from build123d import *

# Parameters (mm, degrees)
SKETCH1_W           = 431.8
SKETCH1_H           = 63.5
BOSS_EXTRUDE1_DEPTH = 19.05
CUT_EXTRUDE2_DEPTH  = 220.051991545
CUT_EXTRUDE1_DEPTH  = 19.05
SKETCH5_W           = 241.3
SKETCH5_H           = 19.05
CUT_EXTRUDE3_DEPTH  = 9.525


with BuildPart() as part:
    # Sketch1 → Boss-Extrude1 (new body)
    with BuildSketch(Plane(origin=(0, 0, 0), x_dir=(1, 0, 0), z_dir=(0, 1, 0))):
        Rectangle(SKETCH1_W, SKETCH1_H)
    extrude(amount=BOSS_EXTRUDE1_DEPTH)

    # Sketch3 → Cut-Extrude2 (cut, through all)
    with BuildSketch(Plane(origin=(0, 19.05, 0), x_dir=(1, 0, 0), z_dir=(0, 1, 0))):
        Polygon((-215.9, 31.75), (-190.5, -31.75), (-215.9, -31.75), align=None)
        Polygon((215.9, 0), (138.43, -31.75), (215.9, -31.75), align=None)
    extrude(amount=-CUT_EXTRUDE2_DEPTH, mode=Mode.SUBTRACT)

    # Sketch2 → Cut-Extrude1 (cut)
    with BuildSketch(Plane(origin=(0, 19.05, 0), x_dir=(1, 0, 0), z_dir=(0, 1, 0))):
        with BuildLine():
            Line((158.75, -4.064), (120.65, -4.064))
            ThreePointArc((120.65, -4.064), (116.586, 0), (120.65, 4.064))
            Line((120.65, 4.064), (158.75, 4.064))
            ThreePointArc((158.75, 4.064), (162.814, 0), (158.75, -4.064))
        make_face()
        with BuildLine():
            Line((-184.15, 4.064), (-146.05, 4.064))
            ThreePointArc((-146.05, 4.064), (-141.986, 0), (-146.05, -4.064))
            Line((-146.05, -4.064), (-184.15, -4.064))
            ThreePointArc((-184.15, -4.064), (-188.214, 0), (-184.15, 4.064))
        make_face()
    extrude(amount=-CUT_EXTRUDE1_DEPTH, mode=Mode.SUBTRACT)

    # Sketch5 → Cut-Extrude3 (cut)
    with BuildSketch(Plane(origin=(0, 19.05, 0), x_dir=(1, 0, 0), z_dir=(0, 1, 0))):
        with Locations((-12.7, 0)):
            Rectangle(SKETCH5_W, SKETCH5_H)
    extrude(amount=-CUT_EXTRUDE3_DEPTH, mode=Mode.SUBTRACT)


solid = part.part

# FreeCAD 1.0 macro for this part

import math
import FreeCAD as App
import Part
import Sketcher
Q = App.Units.Quantity


def add_polygon(sketch, points):
    """Adds a closed chain of lines whose ends are joined by coincident constraints."""
    first, n = sketch.GeometryCount, len(points)
    for a, b in zip(points, points[1:] + points[:1]):
        sketch.addGeometry(Part.LineSegment(App.Vector(*a, 0), App.Vector(*b, 0)), False)
    for i in range(n):
        sketch.addConstraint(Sketcher.Constraint("Coincident", first + i, 2, first + (i + 1) % n, 1))

doc = App.newDocument("Part")
body = doc.addObject("PartDesign::Body", "Body")

# Sketch on XZ plane
sketch1 = doc.addObject("Sketcher::SketchObject", "Sketch")
body.addObject(sketch1)
sketch1.AttachmentSupport = (doc.XZ_Plane, [""])
sketch1.MapMode = "FlatFace"
add_polygon(sketch1, [(-216, -32), (-216, 32), (216, 32), (216, -32)])  # lines 0-3
sketch1.addConstraint(Sketcher.Constraint("Vertical", 0))
sketch1.addConstraint(Sketcher.Constraint("Horizontal", 1))
sketch1.addConstraint(Sketcher.Constraint("Vertical", 2))
sketch1.addConstraint(Sketcher.Constraint("Horizontal", 3))
sketch1.addConstraint(Sketcher.Constraint("Symmetric", 0, 2, 2, 2, -1, 1))
sketch1.addConstraint(Sketcher.Constraint("DistanceX", 1, 1, 1, 2, Q("17 in")))
sketch1.addConstraint(Sketcher.Constraint("DistanceY", 0, 1, 0, 2, Q("2.5 in")))
pad1 = doc.addObject("PartDesign::Pad", "Pad")
body.addObject(pad1)
pad1.Profile = sketch1
pad1.Length = Q("0.75 in")
pad1.Reversed = True

# Sketch on XZ plane
sketch2 = doc.addObject("Sketcher::SketchObject", "Sketch001")
body.addObject(sketch2)
sketch2.AttachmentSupport = (doc.XZ_Plane, [""])
sketch2.MapMode = "FlatFace"
sketch2.AttachmentOffset = App.Placement(App.Vector(0, 0, -0.75 * 25.4), App.Rotation())
add_polygon(sketch2, [(-190, 32), (-216, -32), (-216, 32)])  # lines 0-2
add_polygon(sketch2, [(216, 0), (138, 32), (216, 32)])  # lines 3-5
sketch2.addConstraint(Sketcher.Constraint("Vertical", 1))
sketch2.addConstraint(Sketcher.Constraint("Horizontal", 2))
sketch2.addConstraint(Sketcher.Constraint("Horizontal", 4))
sketch2.addConstraint(Sketcher.Constraint("Vertical", 5))
sketch2.addConstraint(Sketcher.Constraint("Symmetric", 0, 2, 4, 2, -1, 1))
sketch2.addConstraint(Sketcher.Constraint("PointOnObject", 5, 2, -1))
sketch2.addConstraint(Sketcher.Constraint("Horizontal", 2, 2, 3, 2))
sketch2.addConstraint(Sketcher.Constraint("DistanceX", 2, 1, 2, 2, Q("1 in")))
sketch2.addConstraint(Sketcher.Constraint("DistanceY", 1, 1, 1, 2, Q("2.5 in")))
sketch2.addConstraint(Sketcher.Constraint("DistanceX", 2, 2, 4, 2, Q("16 in")))
sketch2.addConstraint(Sketcher.Constraint("DistanceX", 4, 1, 4, 2, Q("3.05 in")))
pocket1 = doc.addObject("PartDesign::Pocket", "Pocket")
body.addObject(pocket1)
pocket1.Profile = sketch2
pocket1.Type = "ThroughAll"
pocket1.Reversed = True

# Sketch on XZ plane
sketch3 = doc.addObject("Sketcher::SketchObject", "Sketch002")
body.addObject(sketch3)
sketch3.AttachmentSupport = (doc.XZ_Plane, [""])
sketch3.MapMode = "FlatFace"
sketch3.AttachmentOffset = App.Placement(App.Vector(0, 0, -0.75 * 25.4), App.Rotation())
sketch3.addGeometry(Part.LineSegment(App.Vector(120.7, 4.1, 0), App.Vector(158.8, 4.1, 0)), False)
sketch3.addGeometry(Part.ArcOfCircle(Part.Circle(App.Vector(158.8, 0, 0), App.Vector(0, 0, 1), 4.1), math.radians(-90), math.radians(90)), False)
sketch3.addGeometry(Part.LineSegment(App.Vector(158.8, -4.1, 0), App.Vector(120.7, -4.1, 0)), False)
sketch3.addGeometry(Part.ArcOfCircle(Part.Circle(App.Vector(120.7, 0, 0), App.Vector(0, 0, 1), 4.1), math.radians(90), math.radians(270)), False)
sketch3.addGeometry(Part.LineSegment(App.Vector(-146.1, -4.1, 0), App.Vector(-184.2, -4.1, 0)), False)
sketch3.addGeometry(Part.ArcOfCircle(Part.Circle(App.Vector(-184.2, 0, 0), App.Vector(0, 0, 1), 4.1), math.radians(90), math.radians(270)), False)
sketch3.addGeometry(Part.LineSegment(App.Vector(-184.2, 4.1, 0), App.Vector(-146.1, 4.1, 0)), False)
sketch3.addGeometry(Part.ArcOfCircle(Part.Circle(App.Vector(-146.1, 0, 0), App.Vector(0, 0, 1), 4.1), math.radians(-90), math.radians(90)), False)
sketch3.addConstraint(Sketcher.Constraint("Tangent", 0, 2, 1, 2))
sketch3.addConstraint(Sketcher.Constraint("Tangent", 1, 1, 2, 1))
sketch3.addConstraint(Sketcher.Constraint("Tangent", 2, 2, 3, 2))
sketch3.addConstraint(Sketcher.Constraint("Tangent", 3, 1, 0, 1))
sketch3.addConstraint(Sketcher.Constraint("Tangent", 4, 2, 5, 2))
sketch3.addConstraint(Sketcher.Constraint("Tangent", 5, 1, 6, 1))
sketch3.addConstraint(Sketcher.Constraint("Tangent", 6, 2, 7, 2))
sketch3.addConstraint(Sketcher.Constraint("Tangent", 7, 1, 4, 1))
sketch3.addConstraint(Sketcher.Constraint("Horizontal", 0))
sketch3.addConstraint(Sketcher.Constraint("Horizontal", 2))
sketch3.addConstraint(Sketcher.Constraint("Horizontal", 4))
sketch3.addConstraint(Sketcher.Constraint("Horizontal", 6))
sketch3.addConstraint(Sketcher.Constraint("Equal", 3, 5))
sketch3.addConstraint(Sketcher.Constraint("PointOnObject", 1, 3, -1))
sketch3.addConstraint(Sketcher.Constraint("PointOnObject", 5, 3, -1))
sketch3.addConstraint(Sketcher.Constraint("Equal", 2, 4))
sketch3.addConstraint(Sketcher.Constraint("Radius", 1, Q("0.16 in")))
sketch3.addConstraint(Sketcher.Constraint("DistanceX", 0, 1, 0, 2, Q("1.5 in")))
sketch3.addConstraint(Sketcher.Constraint("DistanceX", 5, 3, 3, 3, Q("12 in")))
sketch3.addConstraint(Sketcher.Constraint("DistanceX", -1, 1, 1, 3, Q("6.25 in")))
pocket2 = doc.addObject("PartDesign::Pocket", "Pocket001")
body.addObject(pocket2)
pocket2.Profile = sketch3
pocket2.Length = Q("0.75 in")
pocket2.Reversed = True

# Sketch on XZ plane
sketch4 = doc.addObject("Sketcher::SketchObject", "Sketch003")
body.addObject(sketch4)
sketch4.AttachmentSupport = (doc.XZ_Plane, [""])
sketch4.MapMode = "FlatFace"
sketch4.AttachmentOffset = App.Placement(App.Vector(0, 0, -0.75 * 25.4), App.Rotation())
add_polygon(sketch4, [(-133, -10), (-133, 10), (108, 10), (108, -10)])  # lines 0-3
sketch4.addConstraint(Sketcher.Constraint("Vertical", 0))
sketch4.addConstraint(Sketcher.Constraint("Horizontal", 1))
sketch4.addConstraint(Sketcher.Constraint("Vertical", 2))
sketch4.addConstraint(Sketcher.Constraint("Horizontal", 3))
sketch4.addConstraint(Sketcher.Constraint("DistanceX", 1, 1, 1, 2, Q("9.5 in")))
sketch4.addConstraint(Sketcher.Constraint("DistanceY", 0, 1, 0, 2, Q("0.75 in")))
sketch4.addConstraint(Sketcher.Constraint("DistanceX", 0, 2, -1, 1, Q("5.25 in")))
sketch4.addConstraint(Sketcher.Constraint("DistanceY", -1, 1, 0, 2, Q("0.375 in")))
pocket3 = doc.addObject("PartDesign::Pocket", "Pocket002")
body.addObject(pocket3)
pocket3.Profile = sketch4
pocket3.Length = Q("0.375 in")
pocket3.Reversed = True

doc.recompute()
